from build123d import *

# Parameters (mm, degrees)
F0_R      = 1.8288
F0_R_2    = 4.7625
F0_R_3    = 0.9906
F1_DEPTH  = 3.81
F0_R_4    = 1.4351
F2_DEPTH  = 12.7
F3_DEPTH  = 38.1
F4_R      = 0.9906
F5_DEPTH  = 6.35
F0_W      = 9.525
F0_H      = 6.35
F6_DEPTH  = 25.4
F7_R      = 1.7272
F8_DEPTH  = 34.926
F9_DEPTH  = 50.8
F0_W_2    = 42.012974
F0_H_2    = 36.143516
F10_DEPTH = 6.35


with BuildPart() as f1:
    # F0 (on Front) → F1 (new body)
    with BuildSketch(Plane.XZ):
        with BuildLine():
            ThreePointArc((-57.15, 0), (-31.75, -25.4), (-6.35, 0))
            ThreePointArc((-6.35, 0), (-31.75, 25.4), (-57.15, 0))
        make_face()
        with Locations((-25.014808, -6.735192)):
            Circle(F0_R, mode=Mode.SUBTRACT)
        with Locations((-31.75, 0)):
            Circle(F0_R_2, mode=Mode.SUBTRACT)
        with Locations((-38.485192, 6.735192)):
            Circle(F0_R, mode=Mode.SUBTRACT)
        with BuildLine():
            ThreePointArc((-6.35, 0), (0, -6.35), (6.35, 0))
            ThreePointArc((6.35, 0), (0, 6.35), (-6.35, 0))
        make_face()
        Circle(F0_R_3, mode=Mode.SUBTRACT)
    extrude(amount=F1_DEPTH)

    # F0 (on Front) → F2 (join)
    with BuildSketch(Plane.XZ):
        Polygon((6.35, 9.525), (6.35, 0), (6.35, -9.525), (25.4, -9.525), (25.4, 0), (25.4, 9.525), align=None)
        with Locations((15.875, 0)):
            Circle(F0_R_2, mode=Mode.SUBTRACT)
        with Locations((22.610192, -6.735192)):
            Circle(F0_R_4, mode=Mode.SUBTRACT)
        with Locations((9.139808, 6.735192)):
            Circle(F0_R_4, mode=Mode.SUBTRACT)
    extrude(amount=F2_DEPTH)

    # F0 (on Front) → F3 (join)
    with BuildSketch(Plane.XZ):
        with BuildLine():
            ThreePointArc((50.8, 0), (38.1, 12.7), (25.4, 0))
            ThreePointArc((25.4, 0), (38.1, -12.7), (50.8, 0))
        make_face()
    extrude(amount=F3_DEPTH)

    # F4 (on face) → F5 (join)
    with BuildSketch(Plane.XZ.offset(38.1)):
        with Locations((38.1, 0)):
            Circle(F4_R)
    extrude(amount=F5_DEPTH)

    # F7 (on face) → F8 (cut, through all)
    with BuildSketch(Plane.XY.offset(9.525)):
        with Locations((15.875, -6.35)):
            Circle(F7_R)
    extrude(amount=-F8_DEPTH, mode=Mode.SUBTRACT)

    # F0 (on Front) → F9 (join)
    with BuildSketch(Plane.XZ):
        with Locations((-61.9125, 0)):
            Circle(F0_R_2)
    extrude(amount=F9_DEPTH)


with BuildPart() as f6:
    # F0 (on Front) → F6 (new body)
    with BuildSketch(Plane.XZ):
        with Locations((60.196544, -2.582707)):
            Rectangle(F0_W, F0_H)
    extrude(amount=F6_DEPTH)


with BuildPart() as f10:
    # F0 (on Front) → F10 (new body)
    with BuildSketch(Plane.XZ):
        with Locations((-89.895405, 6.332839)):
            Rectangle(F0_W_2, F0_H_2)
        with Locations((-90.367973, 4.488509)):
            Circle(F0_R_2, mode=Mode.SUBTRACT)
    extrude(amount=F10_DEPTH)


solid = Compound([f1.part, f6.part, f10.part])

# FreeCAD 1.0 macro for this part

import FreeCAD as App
import Part
import Sketcher
Q = App.Units.Quantity

doc = App.newDocument("Part")
body = doc.addObject("PartDesign::Body", "Body")
body.AllowCompound = True

sketch1 = doc.addObject("Sketcher::SketchObject", "Sketch")
body.addObject(sketch1)
sketch1.AttachmentSupport = (doc.XZ_Plane, [""])
sketch1.MapMode = "FlatFace"
sketch1.addGeometry([
    Part.Circle(App.Vector(-31.8, 0, 0), App.Vector(0, 0, 1), 25.4),
    Part.Circle(App.Vector(-25, -6.7, 0), App.Vector(0, 0, 1), 1.8),
    Part.Circle(App.Vector(-31.8, 0, 0), App.Vector(0, 0, 1), 4.8),
    Part.Circle(App.Vector(-38.5, 6.7, 0), App.Vector(0, 0, 1), 1.8),
    Part.Circle(App.Vector(0, 0, 0), App.Vector(0, 0, 1), 6.3),
    Part.Circle(App.Vector(0, 0, 0), App.Vector(0, 0, 1), 1),
], False)
sketch1.addConstraint([
    Sketcher.Constraint("Coincident", 4, 3, -1, 1),
    Sketcher.Constraint("Coincident", 5, 3, -1, 1),
    Sketcher.Constraint("Coincident", 2, 3, 0, 3),
    Sketcher.Constraint("Equal", 1, 3),
    Sketcher.Constraint("PointOnObject", 0, 3, -1),
    Sketcher.Constraint("Diameter", 0, Q("2 in")),
    Sketcher.Constraint("Diameter", 4, Q("0.5 in")),
    Sketcher.Constraint("Diameter", 1, Q("0.144 in")),
    Sketcher.Constraint("Diameter", 2, Q("0.375 in")),
    Sketcher.Constraint("Diameter", 5, Q("0.078 in")),
    Sketcher.Constraint("DistanceX", 0, 3, -1, 1, Q("1.25 in")),
    Sketcher.Constraint("DistanceY", 1, 3, -1, 1, 6.735192),
    Sketcher.Constraint("DistanceX", 3, 3, -1, 1, 38.485192),
    Sketcher.Constraint("DistanceY", -1, 1, 3, 3, 6.735192),
    Sketcher.Constraint("DistanceX", 1, 3, -1, 1, 25.014808),
])
pad1 = doc.addObject("PartDesign::Pad", "Pad")
body.addObject(pad1)
pad1.Profile = sketch1
pad1.Length = Q("0.15 in")

sketch2 = doc.addObject("Sketcher::SketchObject", "Sketch001")
body.addObject(sketch2)
sketch2.AttachmentSupport = (doc.XZ_Plane, [""])
sketch2.MapMode = "FlatFace"
sketch2.addGeometry([
    Part.LineSegment(App.Vector(6.3, 9.5, 0), App.Vector(6.3, -9.5, 0)),
    Part.LineSegment(App.Vector(6.3, -9.5, 0), App.Vector(25.4, -9.5, 0)),
    Part.LineSegment(App.Vector(25.4, -9.5, 0), App.Vector(25.4, 9.5, 0)),
    Part.LineSegment(App.Vector(25.4, 9.5, 0), App.Vector(6.3, 9.5, 0)),
    Part.Circle(App.Vector(22.6, -6.7, 0), App.Vector(0, 0, 1), 1.4),
    Part.Circle(App.Vector(15.9, 0, 0), App.Vector(0, 0, 1), 4.8),
    Part.Circle(App.Vector(9.1, 6.7, 0), App.Vector(0, 0, 1), 1.4),
], False)
sketch2.addConstraint([
    Sketcher.Constraint("Coincident", 0, 2, 1, 1),
    Sketcher.Constraint("Coincident", 1, 2, 2, 1),
    Sketcher.Constraint("Coincident", 2, 2, 3, 1),
    Sketcher.Constraint("Coincident", 3, 2, 0, 1),
    Sketcher.Constraint("Vertical", 0),
    Sketcher.Constraint("Horizontal", 1),
    Sketcher.Constraint("Vertical", 2),
    Sketcher.Constraint("Horizontal", 3),
    Sketcher.Constraint("Equal", 4, 6),
    Sketcher.Constraint("PointOnObject", 5, 3, -1),
    Sketcher.Constraint("Equal", 3, 0),
    Sketcher.Constraint("Diameter", 4, Q("0.113 in")),
    Sketcher.Constraint("Diameter", 5, Q("0.375 in")),
    Sketcher.Constraint("DistanceX", -1, 1, 1, 2, Q("1 in")),
    Sketcher.Constraint("DistanceX", 1, 1, 1, 2, Q("0.75 in")),
    Sketcher.Constraint("DistanceX", -1, 1, 5, 3, Q("0.625 in")),
    Sketcher.Constraint("DistanceY", 0, 2, -1, 1, Q("0.375 in")),
    Sketcher.Constraint("DistanceY", 4, 3, -1, 1, 6.735192),
    Sketcher.Constraint("DistanceY", -1, 1, 6, 3, 6.735192),
    Sketcher.Constraint("DistanceX", 6, 3, 5, 3, 6.735192),
    Sketcher.Constraint("DistanceX", -1, 1, 4, 3, 22.610192),
])
pad2 = doc.addObject("PartDesign::Pad", "Pad001")
body.addObject(pad2)
pad2.Profile = sketch2
pad2.Length = Q("0.5 in")

sketch3 = doc.addObject("Sketcher::SketchObject", "Sketch002")
body.addObject(sketch3)
sketch3.AttachmentSupport = (doc.XZ_Plane, [""])
sketch3.MapMode = "FlatFace"
sketch3.addGeometry(Part.Circle(App.Vector(38, 0, 0), App.Vector(0, 0, 1), 13), False)
sketch3.addConstraint([
    Sketcher.Constraint("PointOnObject", 0, 3, -1),
    Sketcher.Constraint("Diameter", 0, Q("1 in")),
    Sketcher.Constraint("DistanceX", -1, 1, 0, 3, Q("1.5 in")),
])
pad3 = doc.addObject("PartDesign::Pad", "Pad002")
body.addObject(pad3)
pad3.Profile = sketch3
pad3.Length = Q("1.5 in")

sketch4 = doc.addObject("Sketcher::SketchObject", "Sketch003")
body.addObject(sketch4)
sketch4.AttachmentSupport = (doc.XZ_Plane, [""])
sketch4.MapMode = "FlatFace"
sketch4.AttachmentOffset = App.Placement(App.Vector(0, 0, 1.5 * 25.4), App.Rotation())
sketch4.addGeometry(Part.Circle(App.Vector(38.1, 0, 0), App.Vector(0, 0, 1), 1), False)
sketch4.addConstraint([
    Sketcher.Constraint("PointOnObject", 0, 3, -1),
    Sketcher.Constraint("Diameter", 0, Q("0.078 in")),
    Sketcher.Constraint("DistanceX", -1, 1, 0, 3, Q("1.5 in")),
])
pad4 = doc.addObject("PartDesign::Pad", "Pad003")
body.addObject(pad4)
pad4.Profile = sketch4
pad4.Length = Q("0.25 in")

sketch5 = doc.addObject("Sketcher::SketchObject", "Sketch004")
body.addObject(sketch5)
sketch5.AttachmentSupport = (doc.XY_Plane, [""])
sketch5.MapMode = "FlatFace"
sketch5.AttachmentOffset = App.Placement(App.Vector(0, 0, 0.375 * 25.4), App.Rotation())
sketch5.addGeometry(Part.Circle(App.Vector(15.9, -6.3, 0), App.Vector(0, 0, 1), 1.7), False)
sketch5.addConstraint([
    Sketcher.Constraint("Diameter", 0, Q("0.136 in")),
    Sketcher.Constraint("DistanceY", 0, 3, -1, 1, Q("0.25 in")),
    Sketcher.Constraint("DistanceX", -1, 1, 0, 3, Q("0.625 in")),
])
pocket1 = doc.addObject("PartDesign::Pocket", "Pocket")
body.addObject(pocket1)
pocket1.Profile = sketch5
pocket1.Type = "ThroughAll"

sketch6 = doc.addObject("Sketcher::SketchObject", "Sketch005")
body.addObject(sketch6)
sketch6.AttachmentSupport = (doc.XZ_Plane, [""])
sketch6.MapMode = "FlatFace"
sketch6.addGeometry(Part.Circle(App.Vector(-61.9, 0, 0), App.Vector(0, 0, 1), 4.8), False)
sketch6.addConstraint([
    Sketcher.Constraint("PointOnObject", 0, 3, -1),
    Sketcher.Constraint("Diameter", 0, Q("0.375 in")),
    Sketcher.Constraint("DistanceX", 0, 3, -1, 1, Q("2.4375 in")),
])
pad5 = doc.addObject("PartDesign::Pad", "Pad004")
body.addObject(pad5)
pad5.Profile = sketch6
pad5.Length = Q("2 in")
body2 = doc.addObject("PartDesign::Body", "Body001")

sketch7 = doc.addObject("Sketcher::SketchObject", "Sketch006")
body2.addObject(sketch7)
sketch7.AttachmentSupport = (doc.getObject("XZ_Plane001"), [""])
sketch7.MapMode = "FlatFace"
sketch7.addGeometry([
    Part.LineSegment(App.Vector(55, 1, 0), App.Vector(55, -6, 0)),
    Part.LineSegment(App.Vector(55, -6, 0), App.Vector(65, -6, 0)),
    Part.LineSegment(App.Vector(65, -6, 0), App.Vector(65, 1, 0)),
    Part.LineSegment(App.Vector(65, 1, 0), App.Vector(55, 1, 0)),
], False)
sketch7.addConstraint([
    Sketcher.Constraint("Coincident", 0, 2, 1, 1),
    Sketcher.Constraint("Coincident", 1, 2, 2, 1),
    Sketcher.Constraint("Coincident", 2, 2, 3, 1),
    Sketcher.Constraint("Coincident", 3, 2, 0, 1),
    Sketcher.Constraint("Vertical", 0),
    Sketcher.Constraint("Horizontal", 1),
    Sketcher.Constraint("Vertical", 2),
    Sketcher.Constraint("Horizontal", 3),
    Sketcher.Constraint("DistanceY", 0, 2, 0, 1, Q("0.25 in")),
    Sketcher.Constraint("DistanceX", 1, 1, 1, 2, Q("0.375 in")),
    Sketcher.Constraint("DistanceX", -1, 1, 0, 2, 55.434044),
    Sketcher.Constraint("DistanceY", 0, 2, -1, 1, 5.757707),
])
pad6 = doc.addObject("PartDesign::Pad", "Pad005")
body2.addObject(pad6)
pad6.Profile = sketch7
pad6.Length = Q("1 in")
body3 = doc.addObject("PartDesign::Body", "Body002")

sketch8 = doc.addObject("Sketcher::SketchObject", "Sketch007")
body3.addObject(sketch8)
sketch8.AttachmentSupport = (doc.getObject("XZ_Plane002"), [""])
sketch8.MapMode = "FlatFace"
sketch8.addGeometry([
    Part.LineSegment(App.Vector(-110.9, 24.4, 0), App.Vector(-110.9, -11.7, 0)),
    Part.LineSegment(App.Vector(-110.9, -11.7, 0), App.Vector(-68.9, -11.7, 0)),
    Part.LineSegment(App.Vector(-68.9, -11.7, 0), App.Vector(-68.9, 24.4, 0)),
    Part.LineSegment(App.Vector(-68.9, 24.4, 0), App.Vector(-110.9, 24.4, 0)),
    Part.Circle(App.Vector(-90.4, 4.5, 0), App.Vector(0, 0, 1), 4.8),
], False)
sketch8.addConstraint([
    Sketcher.Constraint("Coincident", 0, 2, 1, 1),
    Sketcher.Constraint("Coincident", 1, 2, 2, 1),
    Sketcher.Constraint("Coincident", 2, 2, 3, 1),
    Sketcher.Constraint("Coincident", 3, 2, 0, 1),
    Sketcher.Constraint("Vertical", 0),
    Sketcher.Constraint("Horizontal", 1),
    Sketcher.Constraint("Vertical", 2),
    Sketcher.Constraint("Horizontal", 3),
    Sketcher.Constraint("Diameter", 4, Q("0.375 in")),
    Sketcher.Constraint("DistanceX", 1, 1, 1, 2, 42.012974),
    Sketcher.Constraint("DistanceY", 0, 2, 0, 1, 36.143516),
    Sketcher.Constraint("DistanceY", -1, 1, 4, 3, 4.488509),
    Sketcher.Constraint("DistanceY", 0, 2, -1, 1, 11.738919),
    Sketcher.Constraint("DistanceX", 1, 2, -1, 1, 68.888918),
    Sketcher.Constraint("DistanceX", 0, 2, 4, 3, 20.533919),
])
pad7 = doc.addObject("PartDesign::Pad", "Pad006")
body3.addObject(pad7)
pad7.Profile = sketch8
pad7.Length = Q("0.25 in")

doc.recompute()
